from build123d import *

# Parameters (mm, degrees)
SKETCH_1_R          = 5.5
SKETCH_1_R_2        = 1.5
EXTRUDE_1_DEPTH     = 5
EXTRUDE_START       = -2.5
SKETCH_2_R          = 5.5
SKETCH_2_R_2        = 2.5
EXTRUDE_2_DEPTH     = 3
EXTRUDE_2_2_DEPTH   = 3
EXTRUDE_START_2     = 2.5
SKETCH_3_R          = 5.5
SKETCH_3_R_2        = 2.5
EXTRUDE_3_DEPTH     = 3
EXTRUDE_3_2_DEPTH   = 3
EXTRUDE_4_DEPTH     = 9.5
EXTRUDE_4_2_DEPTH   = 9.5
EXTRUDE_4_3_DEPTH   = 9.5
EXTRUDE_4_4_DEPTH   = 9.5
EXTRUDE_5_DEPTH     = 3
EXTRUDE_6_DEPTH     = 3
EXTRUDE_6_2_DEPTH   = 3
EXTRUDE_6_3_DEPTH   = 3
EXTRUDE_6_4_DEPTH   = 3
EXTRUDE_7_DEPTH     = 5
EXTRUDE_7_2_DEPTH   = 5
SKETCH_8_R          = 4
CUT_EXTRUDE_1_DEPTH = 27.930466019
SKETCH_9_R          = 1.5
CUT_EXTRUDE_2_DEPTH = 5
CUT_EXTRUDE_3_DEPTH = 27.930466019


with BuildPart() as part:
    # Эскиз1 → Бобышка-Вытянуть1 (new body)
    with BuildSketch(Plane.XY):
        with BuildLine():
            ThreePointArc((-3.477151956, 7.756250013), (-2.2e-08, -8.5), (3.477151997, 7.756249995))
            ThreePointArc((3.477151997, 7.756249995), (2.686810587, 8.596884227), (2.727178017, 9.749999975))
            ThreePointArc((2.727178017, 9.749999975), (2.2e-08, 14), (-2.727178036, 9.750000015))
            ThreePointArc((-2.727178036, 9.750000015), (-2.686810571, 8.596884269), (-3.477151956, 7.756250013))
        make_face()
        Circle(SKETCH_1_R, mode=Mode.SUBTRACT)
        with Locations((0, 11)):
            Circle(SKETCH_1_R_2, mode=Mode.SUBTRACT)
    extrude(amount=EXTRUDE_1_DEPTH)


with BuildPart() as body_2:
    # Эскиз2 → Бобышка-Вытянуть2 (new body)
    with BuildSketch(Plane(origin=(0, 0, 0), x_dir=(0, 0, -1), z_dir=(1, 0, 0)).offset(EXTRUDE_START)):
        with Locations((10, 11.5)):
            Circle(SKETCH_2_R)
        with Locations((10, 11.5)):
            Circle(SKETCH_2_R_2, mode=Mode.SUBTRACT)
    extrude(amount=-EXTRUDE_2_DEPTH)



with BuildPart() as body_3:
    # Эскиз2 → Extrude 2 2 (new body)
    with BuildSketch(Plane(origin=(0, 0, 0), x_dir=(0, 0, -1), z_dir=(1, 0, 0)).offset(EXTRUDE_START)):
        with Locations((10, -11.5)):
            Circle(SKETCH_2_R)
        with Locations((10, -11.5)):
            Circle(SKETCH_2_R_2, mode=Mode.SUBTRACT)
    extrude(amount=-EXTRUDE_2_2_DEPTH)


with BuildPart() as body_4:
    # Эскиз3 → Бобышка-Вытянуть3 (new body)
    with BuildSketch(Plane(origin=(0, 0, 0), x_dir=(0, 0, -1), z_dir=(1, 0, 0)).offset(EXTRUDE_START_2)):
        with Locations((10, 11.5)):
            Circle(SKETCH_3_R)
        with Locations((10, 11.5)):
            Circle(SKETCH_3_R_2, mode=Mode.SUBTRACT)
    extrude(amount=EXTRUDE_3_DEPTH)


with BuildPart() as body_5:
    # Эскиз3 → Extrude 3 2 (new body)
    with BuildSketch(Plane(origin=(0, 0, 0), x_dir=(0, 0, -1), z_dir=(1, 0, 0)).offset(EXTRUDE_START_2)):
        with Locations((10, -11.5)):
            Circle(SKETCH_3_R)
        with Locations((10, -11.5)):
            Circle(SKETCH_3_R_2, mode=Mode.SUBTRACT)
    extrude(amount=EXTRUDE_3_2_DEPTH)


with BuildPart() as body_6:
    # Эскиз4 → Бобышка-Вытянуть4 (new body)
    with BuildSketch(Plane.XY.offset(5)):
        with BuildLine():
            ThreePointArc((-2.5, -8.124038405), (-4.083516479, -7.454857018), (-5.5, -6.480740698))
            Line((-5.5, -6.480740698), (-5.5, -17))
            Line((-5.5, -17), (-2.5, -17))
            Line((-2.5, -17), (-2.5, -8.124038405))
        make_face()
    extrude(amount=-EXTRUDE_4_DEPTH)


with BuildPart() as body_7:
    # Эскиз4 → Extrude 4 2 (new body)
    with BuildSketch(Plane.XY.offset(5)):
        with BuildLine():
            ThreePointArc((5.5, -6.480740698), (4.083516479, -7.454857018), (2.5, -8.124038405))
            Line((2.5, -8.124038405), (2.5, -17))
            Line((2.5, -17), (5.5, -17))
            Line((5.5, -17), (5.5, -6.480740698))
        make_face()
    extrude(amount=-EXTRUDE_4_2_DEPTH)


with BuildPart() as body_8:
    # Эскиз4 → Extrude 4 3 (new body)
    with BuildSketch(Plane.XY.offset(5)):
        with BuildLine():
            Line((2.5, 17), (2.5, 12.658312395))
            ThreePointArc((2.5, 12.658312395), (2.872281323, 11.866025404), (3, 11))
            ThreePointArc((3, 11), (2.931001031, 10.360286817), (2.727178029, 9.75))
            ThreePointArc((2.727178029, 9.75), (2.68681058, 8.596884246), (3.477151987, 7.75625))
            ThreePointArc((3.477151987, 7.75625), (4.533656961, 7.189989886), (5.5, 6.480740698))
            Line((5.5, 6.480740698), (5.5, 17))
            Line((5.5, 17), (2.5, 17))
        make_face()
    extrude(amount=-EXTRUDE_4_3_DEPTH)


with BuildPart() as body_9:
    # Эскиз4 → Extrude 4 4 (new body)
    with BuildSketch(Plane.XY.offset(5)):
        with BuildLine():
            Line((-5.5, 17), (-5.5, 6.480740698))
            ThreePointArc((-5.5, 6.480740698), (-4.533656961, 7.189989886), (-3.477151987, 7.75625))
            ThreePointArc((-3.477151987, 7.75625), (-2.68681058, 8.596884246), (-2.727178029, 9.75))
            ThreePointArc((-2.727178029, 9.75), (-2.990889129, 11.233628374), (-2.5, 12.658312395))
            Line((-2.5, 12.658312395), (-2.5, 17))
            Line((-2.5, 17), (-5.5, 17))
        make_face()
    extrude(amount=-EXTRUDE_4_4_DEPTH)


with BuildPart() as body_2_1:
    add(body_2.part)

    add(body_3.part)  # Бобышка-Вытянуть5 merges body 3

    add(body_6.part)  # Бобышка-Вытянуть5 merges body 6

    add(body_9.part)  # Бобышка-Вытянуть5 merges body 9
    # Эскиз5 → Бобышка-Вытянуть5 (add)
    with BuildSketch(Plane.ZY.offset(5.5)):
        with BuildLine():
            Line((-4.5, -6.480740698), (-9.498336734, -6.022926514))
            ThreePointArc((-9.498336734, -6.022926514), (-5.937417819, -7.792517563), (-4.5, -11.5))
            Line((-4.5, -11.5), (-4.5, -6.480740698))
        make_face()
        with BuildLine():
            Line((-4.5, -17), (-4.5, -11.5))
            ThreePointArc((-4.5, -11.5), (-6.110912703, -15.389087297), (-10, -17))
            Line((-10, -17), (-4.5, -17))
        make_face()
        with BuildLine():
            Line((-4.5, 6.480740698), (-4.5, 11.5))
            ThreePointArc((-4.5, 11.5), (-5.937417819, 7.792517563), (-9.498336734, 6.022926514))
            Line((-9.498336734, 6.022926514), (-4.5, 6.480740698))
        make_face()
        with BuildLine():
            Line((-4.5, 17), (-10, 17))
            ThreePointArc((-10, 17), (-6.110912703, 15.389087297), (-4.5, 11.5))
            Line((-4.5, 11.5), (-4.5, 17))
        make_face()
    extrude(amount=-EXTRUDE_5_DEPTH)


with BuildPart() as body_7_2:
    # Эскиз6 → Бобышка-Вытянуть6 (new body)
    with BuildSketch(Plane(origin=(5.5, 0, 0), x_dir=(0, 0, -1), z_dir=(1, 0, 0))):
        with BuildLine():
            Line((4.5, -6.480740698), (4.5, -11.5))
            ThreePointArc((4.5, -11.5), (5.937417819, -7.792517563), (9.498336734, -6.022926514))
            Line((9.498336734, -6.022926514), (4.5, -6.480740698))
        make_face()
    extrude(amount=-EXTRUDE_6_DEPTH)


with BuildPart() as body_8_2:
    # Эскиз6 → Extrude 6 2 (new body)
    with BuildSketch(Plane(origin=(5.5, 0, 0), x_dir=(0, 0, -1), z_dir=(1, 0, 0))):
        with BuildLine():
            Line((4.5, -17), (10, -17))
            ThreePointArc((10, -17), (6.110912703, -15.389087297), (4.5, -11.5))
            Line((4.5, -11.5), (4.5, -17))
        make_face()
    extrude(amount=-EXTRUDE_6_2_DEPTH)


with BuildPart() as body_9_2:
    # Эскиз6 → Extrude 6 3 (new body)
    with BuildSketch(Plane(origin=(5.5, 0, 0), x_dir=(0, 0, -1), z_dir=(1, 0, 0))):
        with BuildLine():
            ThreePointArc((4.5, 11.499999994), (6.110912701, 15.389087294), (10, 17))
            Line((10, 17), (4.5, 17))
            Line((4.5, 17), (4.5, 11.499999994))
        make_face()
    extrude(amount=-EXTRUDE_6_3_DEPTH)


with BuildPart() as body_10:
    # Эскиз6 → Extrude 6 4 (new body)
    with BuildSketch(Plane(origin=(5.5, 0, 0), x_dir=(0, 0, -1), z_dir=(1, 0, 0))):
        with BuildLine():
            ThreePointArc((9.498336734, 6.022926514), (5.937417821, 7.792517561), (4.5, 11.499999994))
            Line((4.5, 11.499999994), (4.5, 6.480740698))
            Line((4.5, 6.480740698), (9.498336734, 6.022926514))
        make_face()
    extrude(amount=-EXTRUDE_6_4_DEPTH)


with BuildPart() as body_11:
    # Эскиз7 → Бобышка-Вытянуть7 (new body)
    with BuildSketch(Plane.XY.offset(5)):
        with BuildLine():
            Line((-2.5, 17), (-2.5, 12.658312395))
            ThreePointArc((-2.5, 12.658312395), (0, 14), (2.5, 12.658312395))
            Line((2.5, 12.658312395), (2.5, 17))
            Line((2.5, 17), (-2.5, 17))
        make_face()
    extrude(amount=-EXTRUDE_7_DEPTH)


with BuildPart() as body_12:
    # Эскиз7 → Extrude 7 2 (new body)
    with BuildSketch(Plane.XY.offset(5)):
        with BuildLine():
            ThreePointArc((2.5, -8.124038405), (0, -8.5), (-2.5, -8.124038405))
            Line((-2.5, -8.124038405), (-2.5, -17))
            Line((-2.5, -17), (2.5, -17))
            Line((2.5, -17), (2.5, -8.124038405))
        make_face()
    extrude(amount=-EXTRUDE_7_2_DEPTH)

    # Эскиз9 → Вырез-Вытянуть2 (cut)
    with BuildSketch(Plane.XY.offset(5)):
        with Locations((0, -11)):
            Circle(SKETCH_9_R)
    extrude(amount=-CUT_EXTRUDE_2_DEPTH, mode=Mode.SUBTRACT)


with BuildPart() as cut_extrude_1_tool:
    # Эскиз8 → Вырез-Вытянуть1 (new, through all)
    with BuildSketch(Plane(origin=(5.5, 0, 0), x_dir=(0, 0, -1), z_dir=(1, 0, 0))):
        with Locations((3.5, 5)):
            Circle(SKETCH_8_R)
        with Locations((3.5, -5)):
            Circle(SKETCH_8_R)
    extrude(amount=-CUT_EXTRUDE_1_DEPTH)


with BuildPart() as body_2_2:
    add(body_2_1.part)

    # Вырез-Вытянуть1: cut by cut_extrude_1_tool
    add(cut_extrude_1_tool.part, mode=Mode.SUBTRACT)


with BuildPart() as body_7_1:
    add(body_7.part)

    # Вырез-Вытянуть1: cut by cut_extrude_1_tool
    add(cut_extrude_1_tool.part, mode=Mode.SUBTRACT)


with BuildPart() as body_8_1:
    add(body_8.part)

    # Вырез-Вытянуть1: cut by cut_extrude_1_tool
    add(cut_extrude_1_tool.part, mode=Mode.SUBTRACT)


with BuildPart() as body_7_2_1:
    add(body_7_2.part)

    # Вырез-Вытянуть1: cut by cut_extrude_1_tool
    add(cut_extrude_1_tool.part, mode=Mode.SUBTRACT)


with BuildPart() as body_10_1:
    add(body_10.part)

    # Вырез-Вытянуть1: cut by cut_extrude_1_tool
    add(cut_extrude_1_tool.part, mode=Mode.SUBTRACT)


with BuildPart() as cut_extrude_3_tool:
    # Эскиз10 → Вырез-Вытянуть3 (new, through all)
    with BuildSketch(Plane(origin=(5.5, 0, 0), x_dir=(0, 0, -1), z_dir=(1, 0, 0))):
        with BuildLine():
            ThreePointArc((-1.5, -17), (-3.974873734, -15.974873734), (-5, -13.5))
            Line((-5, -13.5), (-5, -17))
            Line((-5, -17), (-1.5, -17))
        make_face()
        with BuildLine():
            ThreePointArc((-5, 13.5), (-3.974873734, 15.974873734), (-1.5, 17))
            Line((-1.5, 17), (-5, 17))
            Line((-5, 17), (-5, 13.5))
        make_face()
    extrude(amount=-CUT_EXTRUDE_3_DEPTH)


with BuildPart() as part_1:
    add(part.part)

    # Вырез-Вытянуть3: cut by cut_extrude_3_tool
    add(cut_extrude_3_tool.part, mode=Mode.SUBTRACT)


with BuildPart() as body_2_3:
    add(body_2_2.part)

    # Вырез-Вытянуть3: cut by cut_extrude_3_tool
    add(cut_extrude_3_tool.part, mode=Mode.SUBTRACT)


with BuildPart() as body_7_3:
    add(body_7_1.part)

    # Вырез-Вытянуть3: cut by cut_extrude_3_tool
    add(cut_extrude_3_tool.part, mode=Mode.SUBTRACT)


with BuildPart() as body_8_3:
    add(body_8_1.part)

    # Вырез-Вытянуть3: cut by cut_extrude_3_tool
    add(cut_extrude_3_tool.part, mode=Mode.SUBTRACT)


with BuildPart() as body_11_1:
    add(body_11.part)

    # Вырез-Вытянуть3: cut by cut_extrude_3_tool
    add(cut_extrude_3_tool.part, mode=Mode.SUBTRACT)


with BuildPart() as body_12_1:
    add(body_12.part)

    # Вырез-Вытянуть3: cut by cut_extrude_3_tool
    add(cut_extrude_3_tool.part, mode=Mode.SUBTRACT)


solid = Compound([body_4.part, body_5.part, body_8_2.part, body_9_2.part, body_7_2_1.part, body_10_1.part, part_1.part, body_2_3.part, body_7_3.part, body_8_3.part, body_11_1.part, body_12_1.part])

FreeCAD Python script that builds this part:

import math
import FreeCAD as App
import Part
import Sketcher

V = App.Vector

doc = App.newDocument("Part")
body = doc.addObject("PartDesign::Body", "Body")

sketch1 = doc.addObject("Sketcher::SketchObject", "Sketch")
body.addObject(sketch1)
sketch1.AttachmentSupport = (doc.XY_Plane, [""])
sketch1.MapMode = "FlatFace"
sketch1.addGeometry([
    Part.ArcOfCircle(Part.Circle(V(0, 0, 0), V(0, 0, 1), 8.5), math.radians(114), math.radians(426)),
    Part.ArcOfCircle(Part.Circle(V(4.1, 9.1, 0), V(0, 0, 1), 1.5), math.radians(155), math.radians(246)),
    Part.ArcOfCircle(Part.Circle(V(0, 11, 0), V(0, 0, 1), 3), math.radians(-25), math.radians(205)),
    Part.ArcOfCircle(Part.Circle(V(-4.1, 9.1, 0), V(0, 0, 1), 1.5), math.radians(-66), math.radians(25)),
    Part.Circle(V(0, 0, 0), V(0, 0, 1), 5.5),
    Part.Circle(V(0, 11, 0), V(0, 0, 1), 1.5),
], False)
sketch1.addConstraint([
    Sketcher.Constraint("Tangent", 0, 2, 1, 2),
    Sketcher.Constraint("Tangent", 1, 1, 2, 1),
    Sketcher.Constraint("Tangent", 2, 2, 3, 2),
    Sketcher.Constraint("Tangent", 3, 1, 0, 1),
    Sketcher.Constraint("Coincident", 0, 3, -1, 1),
    Sketcher.Constraint("Coincident", 4, 3, -1, 1),
    Sketcher.Constraint("Coincident", 5, 3, 2, 3),
    Sketcher.Constraint("Equal", 1, 3),
    Sketcher.Constraint("Equal", 3, 5),
    Sketcher.Constraint("PointOnObject", 2, 3, -2),
    Sketcher.Constraint("Diameter", 4, 11.0),
    Sketcher.Constraint("Diameter", 5, 3.0),
    Sketcher.Constraint("Radius", 2, 3.0),
    Sketcher.Constraint("Radius", 0, 8.5),
    Sketcher.Constraint("DistanceY", -1, 1, 2, 3, 11.0),
])
pad1 = doc.addObject("PartDesign::Pad", "Pad")
body.addObject(pad1)
pad1.Profile = sketch1
pad1.Length = 5
body2 = doc.addObject("PartDesign::Body", "Body001")

sketch2 = doc.addObject("Sketcher::SketchObject", "Sketch001")
body2.addObject(sketch2)
sketch2.AttachmentSupport = (doc.getObject("YZ_Plane001"), [""])
sketch2.MapMode = "FlatFace"
sketch2.AttachmentOffset = App.Placement(V(0, 0, -2.5), App.Rotation())
sketch2.addGeometry([
    Part.Circle(V(11.5, -10, 0), V(0, 0, 1), 5.5),
    Part.Circle(V(11.5, -10, 0), V(0, 0, 1), 2.5),
], False)
sketch2.addConstraint([
    Sketcher.Constraint("Coincident", 1, 3, 0, 3),
    Sketcher.Constraint("Diameter", 0, 11.0),
    Sketcher.Constraint("Diameter", 1, 5.0),
    Sketcher.Constraint("DistanceY", 0, 3, -1, 1, 10.0),
    Sketcher.Constraint("DistanceX", -1, 1, 0, 3, 11.5),
])
pad2 = doc.addObject("PartDesign::Pad", "Pad001")
body2.addObject(pad2)
pad2.Profile = sketch2
pad2.Length = 3
pad2.Reversed = True
body3 = doc.addObject("PartDesign::Body", "Body002")

sketch3 = doc.addObject("Sketcher::SketchObject", "Sketch002")
body3.addObject(sketch3)
sketch3.AttachmentSupport = (doc.getObject("YZ_Plane002"), [""])
sketch3.MapMode = "FlatFace"
sketch3.AttachmentOffset = App.Placement(V(0, 0, -2.5), App.Rotation())
sketch3.addGeometry([
    Part.Circle(V(-11.5, -10, 0), V(0, 0, 1), 5.5),
    Part.Circle(V(-11.5, -10, 0), V(0, 0, 1), 2.5),
], False)
sketch3.addConstraint([
    Sketcher.Constraint("Coincident", 1, 3, 0, 3),
    Sketcher.Constraint("Diameter", 0, 11.0),
    Sketcher.Constraint("Diameter", 1, 5.0),
    Sketcher.Constraint("DistanceY", 0, 3, -1, 1, 10.0),
    Sketcher.Constraint("DistanceX", 0, 3, -1, 1, 11.5),
])
pad3 = doc.addObject("PartDesign::Pad", "Pad002")
body3.addObject(pad3)
pad3.Profile = sketch3
pad3.Length = 3
pad3.Reversed = True
body4 = doc.addObject("PartDesign::Body", "Body003")

sketch4 = doc.addObject("Sketcher::SketchObject", "Sketch003")
body4.addObject(sketch4)
sketch4.AttachmentSupport = (doc.getObject("YZ_Plane003"), [""])
sketch4.MapMode = "FlatFace"
sketch4.AttachmentOffset = App.Placement(V(0, 0, 2.5), App.Rotation())
sketch4.addGeometry([
    Part.Circle(V(11.5, -10, 0), V(0, 0, 1), 5.5),
    Part.Circle(V(11.5, -10, 0), V(0, 0, 1), 2.5),
], False)
sketch4.addConstraint([
    Sketcher.Constraint("Coincident", 1, 3, 0, 3),
    Sketcher.Constraint("Diameter", 0, 11.0),
    Sketcher.Constraint("Diameter", 1, 5.0),
    Sketcher.Constraint("DistanceY", 0, 3, -1, 1, 10.0),
    Sketcher.Constraint("DistanceX", -1, 1, 0, 3, 11.5),
])
pad4 = doc.addObject("PartDesign::Pad", "Pad003")
body4.addObject(pad4)
pad4.Profile = sketch4
pad4.Length = 3
body5 = doc.addObject("PartDesign::Body", "Body004")

sketch5 = doc.addObject("Sketcher::SketchObject", "Sketch004")
body5.addObject(sketch5)
sketch5.AttachmentSupport = (doc.getObject("YZ_Plane004"), [""])
sketch5.MapMode = "FlatFace"
sketch5.AttachmentOffset = App.Placement(V(0, 0, 2.5), App.Rotation())
sketch5.addGeometry([
    Part.Circle(V(-11.5, -10, 0), V(0, 0, 1), 5.5),
    Part.Circle(V(-11.5, -10, 0), V(0, 0, 1), 2.5),
], False)
sketch5.addConstraint([
    Sketcher.Constraint("Coincident", 1, 3, 0, 3),
    Sketcher.Constraint("Diameter", 0, 11.0),
    Sketcher.Constraint("Diameter", 1, 5.0),
    Sketcher.Constraint("DistanceY", 0, 3, -1, 1, 10.0),
    Sketcher.Constraint("DistanceX", 0, 3, -1, 1, 11.5),
])
pad5 = doc.addObject("PartDesign::Pad", "Pad004")
body5.addObject(pad5)
pad5.Profile = sketch5
pad5.Length = 3
body6 = doc.addObject("PartDesign::Body", "Body005")

sketch6 = doc.addObject("Sketcher::SketchObject", "Sketch005")
body6.addObject(sketch6)
sketch6.AttachmentSupport = (doc.getObject("XY_Plane005"), [""])
sketch6.MapMode = "FlatFace"
sketch6.AttachmentOffset = App.Placement(V(0, 0, 5), App.Rotation())
sketch6.addGeometry([
    Part.ArcOfCircle(Part.Circle(V(0, 0, 0), V(0, 0, 1), 8.5), math.radians(-130), math.radians(-107)),
    Part.LineSegment(V(-5.5, -6.5, 0), V(-5.5, -17, 0)),
    Part.LineSegment(V(-5.5, -17, 0), V(-2.5, -17, 0)),
    Part.LineSegment(V(-2.5, -17, 0), V(-2.5, -8.1, 0)),
], False)
sketch6.addConstraint([
    Sketcher.Constraint("Coincident", 0, 1, 1, 1),
    Sketcher.Constraint("Coincident", 1, 2, 2, 1),
    Sketcher.Constraint("Coincident", 2, 2, 3, 1),
    Sketcher.Constraint("Coincident", 3, 2, 0, 2),
    Sketcher.Constraint("Vertical", 1),
    Sketcher.Constraint("Horizontal", 2),
    Sketcher.Constraint("Vertical", 3),
    Sketcher.Constraint("Coincident", 0, 3, -1, 1),
    Sketcher.Constraint("Radius", 0, 8.5),
    Sketcher.Constraint("DistanceX", 2, 1, 2, 2, 3.0),
    Sketcher.Constraint("DistanceY", 1, 2, -1, 1, 17.0),
    Sketcher.Constraint("DistanceX", 0, 1, -1, 1, 5.5),
])
pad6 = doc.addObject("PartDesign::Pad", "Pad005")
body6.addObject(pad6)
pad6.Profile = sketch6
pad6.Length = 9.5
pad6.Reversed = True
body7 = doc.addObject("PartDesign::Body", "Body006")

sketch7 = doc.addObject("Sketcher::SketchObject", "Sketch006")
body7.addObject(sketch7)
sketch7.AttachmentSupport = (doc.getObject("XY_Plane006"), [""])
sketch7.MapMode = "FlatFace"
sketch7.AttachmentOffset = App.Placement(V(0, 0, 5), App.Rotation())
sketch7.addGeometry([
    Part.ArcOfCircle(Part.Circle(V(0, 0, 0), V(0, 0, 1), 8.5), math.radians(-73), math.radians(-50)),
    Part.LineSegment(V(2.5, -8.1, 0), V(2.5, -17, 0)),
    Part.LineSegment(V(2.5, -17, 0), V(5.5, -17, 0)),
    Part.LineSegment(V(5.5, -17, 0), V(5.5, -6.5, 0)),
], False)
sketch7.addConstraint([
    Sketcher.Constraint("Coincident", 0, 1, 1, 1),
    Sketcher.Constraint("Coincident", 1, 2, 2, 1),
    Sketcher.Constraint("Coincident", 2, 2, 3, 1),
    Sketcher.Constraint("Coincident", 3, 2, 0, 2),
    Sketcher.Constraint("Vertical", 1),
    Sketcher.Constraint("Horizontal", 2),
    Sketcher.Constraint("Vertical", 3),
    Sketcher.Constraint("Coincident", 0, 3, -1, 1),
    Sketcher.Constraint("Radius", 0, 8.5),
    Sketcher.Constraint("DistanceX", 2, 1, 2, 2, 3.0),
    Sketcher.Constraint("DistanceY", 1, 2, -1, 1, 17.0),
    Sketcher.Constraint("DistanceX", -1, 1, 0, 1, 2.5),
])
pad7 = doc.addObject("PartDesign::Pad", "Pad006")
body7.addObject(pad7)
pad7.Profile = sketch7
pad7.Length = 9.5
pad7.Reversed = True
body8 = doc.addObject("PartDesign::Body", "Body007")

sketch8 = doc.addObject("Sketcher::SketchObject", "Sketch007")
body8.addObject(sketch8)
sketch8.AttachmentSupport = (doc.getObject("XY_Plane007"), [""])
sketch8.MapMode = "FlatFace"
sketch8.AttachmentOffset = App.Placement(V(0, 0, 5), App.Rotation())
sketch8.addGeometry([
    Part.LineSegment(V(2.5, 17, 0), V(2.5, 12.7, 0)),
    Part.ArcOfCircle(Part.Circle(V(0, 11, 0), V(0, 0, 1), 3), math.radians(0), math.radians(34)),
    Part.ArcOfCircle(Part.Circle(V(0, 11, 0), V(0, 0, 1), 3), math.radians(-25), math.radians(0)),
    Part.ArcOfCircle(Part.Circle(V(4.1, 9.1, 0), V(0, 0, 1), 1.5), math.radians(155), math.radians(246)),
    Part.ArcOfCircle(Part.Circle(V(0, 0, 0), V(0, 0, 1), 8.5), math.radians(49.68), math.radians(65.85)),
    Part.LineSegment(V(5.5, 6.5, 0), V(5.5, 17, 0)),
    Part.LineSegment(V(5.5, 17, 0), V(2.5, 17, 0)),
], False)
sketch8.addConstraint([
    Sketcher.Constraint("Coincident", 0, 2, 1, 2),
    Sketcher.Constraint("Tangent", 1, 1, 2, 2),
    Sketcher.Constraint("Tangent", 2, 1, 3, 1),
    Sketcher.Constraint("Tangent", 3, 2, 4, 2),
    Sketcher.Constraint("Coincident", 4, 1, 5, 1),
    Sketcher.Constraint("Coincident", 5, 2, 6, 1),
    Sketcher.Constraint("Coincident", 6, 2, 0, 1),
    Sketcher.Constraint("Vertical", 0),
    Sketcher.Constraint("Vertical", 5),
    Sketcher.Constraint("Horizontal", 6),
    Sketcher.Constraint("Coincident", 4, 3, -1, 1),
    Sketcher.Constraint("Equal", 1, 2),
    Sketcher.Constraint("PointOnObject", 1, 3, -2),
    Sketcher.Constraint("Horizontal", 2, 3, 1, 1),
    Sketcher.Constraint("Radius", 1, 3.0),
    Sketcher.Constraint("Radius", 3, 1.5),
    Sketcher.Constraint("Radius", 4, 8.5),
    Sketcher.Constraint("DistanceX", 6, 2, 6, 1, 3.0),
    Sketcher.Constraint("DistanceY", -1, 1, 1, 3, 11.0),
    Sketcher.Constraint("DistanceY", -1, 1, 5, 2, 17.0),
    Sketcher.Constraint("DistanceX", -1, 1, 0, 2, 2.5),
])
pad8 = doc.addObject("PartDesign::Pad", "Pad007")
body8.addObject(pad8)
pad8.Profile = sketch8
pad8.Length = 9.5
pad8.Reversed = True
body9 = doc.addObject("PartDesign::Body", "Body008")

sketch9 = doc.addObject("Sketcher::SketchObject", "Sketch008")
body9.addObject(sketch9)
sketch9.AttachmentSupport = (doc.getObject("XY_Plane008"), [""])
sketch9.MapMode = "FlatFace"
sketch9.AttachmentOffset = App.Placement(V(0, 0, 5), App.Rotation())
sketch9.addGeometry([
    Part.LineSegment(V(-5.5, 17, 0), V(-5.5, 6.5, 0)),
    Part.ArcOfCircle(Part.Circle(V(0, 0, 0), V(0, 0, 1), 8.5), math.radians(114.15), math.radians(130.32)),
    Part.ArcOfCircle(Part.Circle(V(-4.1, 9.1, 0), V(0, 0, 1), 1.5), math.radians(-66), math.radians(25)),
    Part.ArcOfCircle(Part.Circle(V(0, 11, 0), V(0, 0, 1), 3), math.radians(146), math.radians(205)),
    Part.LineSegment(V(-2.5, 12.7, 0), V(-2.5, 17, 0)),
    Part.LineSegment(V(-2.5, 17, 0), V(-5.5, 17, 0)),
], False)
sketch9.addConstraint([
    Sketcher.Constraint("Coincident", 0, 2, 1, 2),
    Sketcher.Constraint("Tangent", 1, 1, 2, 1),
    Sketcher.Constraint("Tangent", 2, 2, 3, 2),
    Sketcher.Constraint("Coincident", 3, 1, 4, 1),
    Sketcher.Constraint("Coincident", 4, 2, 5, 1),
    Sketcher.Constraint("Coincident", 5, 2, 0, 1),
    Sketcher.Constraint("Vertical", 0),
    Sketcher.Constraint("Vertical", 4),
    Sketcher.Constraint("Horizontal", 5),
    Sketcher.Constraint("Coincident", 1, 3, -1, 1),
    Sketcher.Constraint("PointOnObject", 3, 3, -2),
    Sketcher.Constraint("Radius", 3, 3.0),
    Sketcher.Constraint("Radius", 1, 8.5),
    Sketcher.Constraint("Radius", 2, 1.5),
    Sketcher.Constraint("DistanceX", 5, 2, 5, 1, 3.0),
    Sketcher.Constraint("DistanceY", -1, 1, 3, 3, 11.0),
    Sketcher.Constraint("DistanceY", -1, 1, 4, 2, 17.0),
    Sketcher.Constraint("DistanceX", 0, 2, -1, 1, 5.5),
])
pad9 = doc.addObject("PartDesign::Pad", "Pad008")
body9.addObject(pad9)
pad9.Profile = sketch9
pad9.Length = 9.5
pad9.Reversed = True
body2.AllowCompound = True
doc.recompute()

boolean = doc.addObject("PartDesign::Boolean", "Boolean")
body2.addObject(boolean)
boolean.Type = "Fuse"
boolean.addObjects([body3])
doc.recompute()

boolean2 = doc.addObject("PartDesign::Boolean", "Boolean001")
body2.addObject(boolean2)
boolean2.Type = "Fuse"
boolean2.addObjects([body6])
doc.recompute()

boolean3 = doc.addObject("PartDesign::Boolean", "Boolean002")
body2.addObject(boolean3)
boolean3.Type = "Fuse"
boolean3.addObjects([body9])

sketch10 = doc.addObject("Sketcher::SketchObject", "Sketch009")
body2.addObject(sketch10)
sketch10.AttachmentSupport = (doc.getObject("YZ_Plane001"), [""])
sketch10.MapMode = "FlatFace"
sketch10.AttachmentOffset = App.Placement(V(0, 0, -5.5), App.Rotation())
sketch10.addGeometry([
    Part.LineSegment(V(-6, -4, 0), V(-6, -9, 0)),
    Part.ArcOfCircle(Part.Circle(V(-12, -10, 0), V(0, 0, 1), 6), math.radians(5), math.radians(90)),
    Part.LineSegment(V(-12, -4, 0), V(-6, -4, 0)),
    Part.LineSegment(V(-17, -4, 0), V(-12, -4, 0)),
    Part.ArcOfCircle(Part.Circle(V(-12, -10, 0), V(0, 0, 1), 5), math.radians(90), math.radians(180)),
    Part.LineSegment(V(-17, -10, 0), V(-17, -4, 0)),
    Part.LineSegment(V(6, -4, 0), V(12, -4, 0)),
    Part.ArcOfCircle(Part.Circle(V(12, -10, 0), V(0, 0, 1), 6), math.radians(90), math.radians(175)),
    Part.LineSegment(V(6, -9, 0), V(6, -4, 0)),
    Part.LineSegment(V(17, -4, 0), V(17, -10, 0)),
    Part.ArcOfCircle(Part.Circle(V(12, -10, 0), V(0, 0, 1), 5), math.radians(0), math.radians(90)),
    Part.LineSegment(V(12, -4, 0), V(17, -4, 0)),
], False)
sketch10.addConstraint([
    Sketcher.Constraint("Tangent", 0, 2, 1, 1),
    Sketcher.Constraint("Tangent", 1, 2, 2, 1),
    Sketcher.Constraint("Coincident", 2, 2, 0, 1),
    Sketcher.Constraint("Tangent", 3, 2, 4, 1),
    Sketcher.Constraint("Tangent", 4, 2, 5, 1),
    Sketcher.Constraint("Coincident", 5, 2, 3, 1),
    Sketcher.Constraint("Tangent", 6, 2, 7, 1),
    Sketcher.Constraint("Tangent", 7, 2, 8, 1),
    Sketcher.Constraint("Coincident", 8, 2, 6, 1),
    Sketcher.Constraint("Tangent", 9, 2, 10, 1),
    Sketcher.Constraint("Tangent", 10, 2, 11, 1),
    Sketcher.Constraint("Coincident", 11, 2, 9, 1),
    Sketcher.Constraint("Horizontal", 2),
    Sketcher.Constraint("Horizontal", 3),
    Sketcher.Constraint("Vertical", 5),
    Sketcher.Constraint("Horizontal", 6),
    Sketcher.Constraint("Vertical", 9),
    Sketcher.Constraint("Horizontal", 11),
    Sketcher.Constraint("Coincident", 4, 3, 1, 3),
    Sketcher.Constraint("Coincident", 10, 3, 7, 3),
    Sketcher.Constraint("Equal", 1, 4),
    Sketcher.Constraint("Equal", 4, 7),
    Sketcher.Constraint("Equal", 7, 10),
    Sketcher.Constraint("Symmetric", 1, 3, 7, 3, -2),
    Sketcher.Constraint("Horizontal", 0, 2, 7, 2),
    Sketcher.Constraint("Radius", 1, 5.5),
    Sketcher.Constraint("DistanceY", 1, 3, -1, 1, 10.0),
    Sketcher.Constraint("DistanceX", 4, 2, -1, 1, 17.0),
    Sketcher.Constraint("DistanceX", 2, 1, 2, 2, 5.019259),
])
pad10 = doc.addObject("PartDesign::Pad", "Pad009")
body2.addObject(pad10)
pad10.Profile = sketch10
pad10.Length = 3
body10 = doc.addObject("PartDesign::Body", "Body009")

sketch11 = doc.addObject("Sketcher::SketchObject", "Sketch010")
body10.addObject(sketch11)
sketch11.AttachmentSupport = (doc.getObject("YZ_Plane009"), [""])
sketch11.MapMode = "FlatFace"
sketch11.AttachmentOffset = App.Placement(V(0, 0, 5.5), App.Rotation())
sketch11.addGeometry([
    Part.LineSegment(V(-6, -4, 0), V(-12, -4, 0)),
    Part.ArcOfCircle(Part.Circle(V(-12, -10, 0), V(0, 0, 1), 6), math.radians(5), math.radians(90)),
    Part.LineSegment(V(-6, -9, 0), V(-6, -4, 0)),
], False)
sketch11.addConstraint([
    Sketcher.Constraint("Tangent", 0, 2, 1, 2),
    Sketcher.Constraint("Tangent", 1, 1, 2, 1),
    Sketcher.Constraint("Coincident", 2, 2, 0, 1),
    Sketcher.Constraint("Horizontal", 0),
    Sketcher.Constraint("Radius", 1, 5.5),
    Sketcher.Constraint("DistanceY", 1, 3, -1, 1, 10.0),
    Sketcher.Constraint("DistanceX", 1, 3, -1, 1, 11.5),
    Sketcher.Constraint("DistanceX", 0, 2, 0, 1, 5.019259),
])
pad11 = doc.addObject("PartDesign::Pad", "Pad010")
body10.addObject(pad11)
pad11.Profile = sketch11
pad11.Length = 3
pad11.Reversed = True
body11 = doc.addObject("PartDesign::Body", "Body010")

sketch12 = doc.addObject("Sketcher::SketchObject", "Sketch011")
body11.addObject(sketch12)
sketch12.AttachmentSupport = (doc.getObject("YZ_Plane010"), [""])
sketch12.MapMode = "FlatFace"
sketch12.AttachmentOffset = App.Placement(V(0, 0, 5.5), App.Rotation())
sketch12.addGeometry([
    Part.LineSegment(V(-17, -4, 0), V(-17, -10, 0)),
    Part.ArcOfCircle(Part.Circle(V(-12, -10, 0), V(0, 0, 1), 5), math.radians(90), math.radians(180)),
    Part.LineSegment(V(-12, -4, 0), V(-17, -4, 0)),
], False)
sketch12.addConstraint([
    Sketcher.Constraint("Tangent", 0, 2, 1, 2),
    Sketcher.Constraint("Tangent", 1, 1, 2, 1),
    Sketcher.Constraint("Coincident", 2, 2, 0, 1),
    Sketcher.Constraint("Vertical", 0),
    Sketcher.Constraint("Horizontal", 2),
    Sketcher.Constraint("Radius", 1, 5.5),
    Sketcher.Constraint("DistanceY", 1, 3, -1, 1, 10.0),
    Sketcher.Constraint("DistanceX", 0, 2, -1, 1, 17.0),
])
pad12 = doc.addObject("PartDesign::Pad", "Pad011")
body11.addObject(pad12)
pad12.Profile = sketch12
pad12.Length = 3
pad12.Reversed = True
body12 = doc.addObject("PartDesign::Body", "Body011")

sketch13 = doc.addObject("Sketcher::SketchObject", "Sketch012")
body12.addObject(sketch13)
sketch13.AttachmentSupport = (doc.getObject("YZ_Plane011"), [""])
sketch13.MapMode = "FlatFace"
sketch13.AttachmentOffset = App.Placement(V(0, 0, 5.5), App.Rotation())
sketch13.addGeometry([
    Part.ArcOfCircle(Part.Circle(V(12, -10, 0), V(0, 0, 1), 6), math.radians(0), math.radians(90)),
    Part.LineSegment(V(17, -10, 0), V(17, -4, 0)),
    Part.LineSegment(V(17, -4, 0), V(11, -4, 0)),
], False)
sketch13.addConstraint([
    Sketcher.Constraint("Tangent", 0, 1, 1, 1),
    Sketcher.Constraint("Coincident", 1, 2, 2, 1),
    Sketcher.Constraint("Tangent", 2, 2, 0, 2),
    Sketcher.Constraint("Vertical", 1),
    Sketcher.Constraint("Horizontal", 2),
    Sketcher.Constraint("Radius", 0, 5.5),
    Sketcher.Constraint("DistanceY", 0, 3, -1, 1, 10.0),
    Sketcher.Constraint("DistanceX", -1, 1, 0, 1, 17.0),
])
pad13 = doc.addObject("PartDesign::Pad", "Pad012")
body12.addObject(pad13)
pad13.Profile = sketch13
pad13.Length = 3
pad13.Reversed = True
body13 = doc.addObject("PartDesign::Body", "Body012")

sketch14 = doc.addObject("Sketcher::SketchObject", "Sketch013")
body13.addObject(sketch14)
sketch14.AttachmentSupport = (doc.getObject("YZ_Plane012"), [""])
sketch14.MapMode = "FlatFace"
sketch14.AttachmentOffset = App.Placement(V(0, 0, 5.5), App.Rotation())
sketch14.addGeometry([
    Part.ArcOfCircle(Part.Circle(V(12, -10, 0), V(0, 0, 1), 6), math.radians(90), math.radians(175)),
    Part.LineSegment(V(11, -4, 0), V(6, -4, 0)),
    Part.LineSegment(V(6, -4, 0), V(6, -9, 0)),
], False)
sketch14.addConstraint([
    Sketcher.Constraint("Tangent", 0, 1, 1, 1),
    Sketcher.Constraint("Coincident", 1, 2, 2, 1),
    Sketcher.Constraint("Tangent", 2, 2, 0, 2),
    Sketcher.Constraint("Horizontal", 1),
    Sketcher.Constraint("Radius", 0, 5.5),
    Sketcher.Constraint("DistanceY", 0, 3, -1, 1, 10.0),
    Sketcher.Constraint("DistanceX", -1, 1, 0, 3, 11.5),
    Sketcher.Constraint("DistanceX", 1, 2, 1, 1, 5.019259),
])
pad14 = doc.addObject("PartDesign::Pad", "Pad013")
body13.addObject(pad14)
pad14.Profile = sketch14
pad14.Length = 3
pad14.Reversed = True
body14 = doc.addObject("PartDesign::Body", "Body013")

sketch15 = doc.addObject("Sketcher::SketchObject", "Sketch014")
body14.addObject(sketch15)
sketch15.AttachmentSupport = (doc.getObject("XY_Plane013"), [""])
sketch15.MapMode = "FlatFace"
sketch15.AttachmentOffset = App.Placement(V(0, 0, 5), App.Rotation())
sketch15.addGeometry([
    Part.LineSegment(V(-2.5, 17, 0), V(-2.5, 12.7, 0)),
    Part.ArcOfCircle(Part.Circle(V(0, 11, 0), V(0, 0, 1), 3), math.radians(34), math.radians(146)),
    Part.LineSegment(V(2.5, 12.7, 0), V(2.5, 17, 0)),
    Part.LineSegment(V(2.5, 17, 0), V(-2.5, 17, 0)),
], False)
sketch15.addConstraint([
    Sketcher.Constraint("Coincident", 0, 2, 1, 2),
    Sketcher.Constraint("Coincident", 1, 1, 2, 1),
    Sketcher.Constraint("Coincident", 2, 2, 3, 1),
    Sketcher.Constraint("Coincident", 3, 2, 0, 1),
    Sketcher.Constraint("Vertical", 0),
    Sketcher.Constraint("Vertical", 2),
    Sketcher.Constraint("Horizontal", 3),
    Sketcher.Constraint("Symmetric", 0, 2, 1, 1, -2),
    Sketcher.Constraint("Radius", 1, 3.0),
    Sketcher.Constraint("DistanceX", 3, 2, 3, 1, 5.0),
    Sketcher.Constraint("DistanceY", -1, 1, 1, 3, 11.0),
    Sketcher.Constraint("DistanceY", -1, 1, 2, 2, 17.0),
])
pad15 = doc.addObject("PartDesign::Pad", "Pad014")
body14.addObject(pad15)
pad15.Profile = sketch15
pad15.Length = 5
pad15.Reversed = True
body15 = doc.addObject("PartDesign::Body", "Body014")

sketch16 = doc.addObject("Sketcher::SketchObject", "Sketch015")
body15.addObject(sketch16)
sketch16.AttachmentSupport = (doc.getObject("XY_Plane014"), [""])
sketch16.MapMode = "FlatFace"
sketch16.AttachmentOffset = App.Placement(V(0, 0, 5), App.Rotation())
sketch16.addGeometry([
    Part.ArcOfCircle(Part.Circle(V(0, 0, 0), V(0, 0, 1), 9), math.radians(-107), math.radians(-73)),
    Part.LineSegment(V(-2, -8, 0), V(-2, -17, 0)),
    Part.LineSegment(V(-2, -17, 0), V(2, -17, 0)),
    Part.LineSegment(V(2, -17, 0), V(2, -8, 0)),
], False)
sketch16.addConstraint([
    Sketcher.Constraint("Coincident", 0, 1, 1, 1),
    Sketcher.Constraint("Coincident", 1, 2, 2, 1),
    Sketcher.Constraint("Coincident", 2, 2, 3, 1),
    Sketcher.Constraint("Coincident", 3, 2, 0, 2),
    Sketcher.Constraint("Vertical", 1),
    Sketcher.Constraint("Horizontal", 2),
    Sketcher.Constraint("Vertical", 3),
    Sketcher.Constraint("Coincident", 0, 3, -1, 1),
    Sketcher.Constraint("Horizontal", 0, 1, 3, 2),
    Sketcher.Constraint("Radius", 0, 8.5),
    Sketcher.Constraint("DistanceX", 2, 1, 2, 2, 5.0),
    Sketcher.Constraint("DistanceY", 1, 2, -1, 1, 17.0),
])
pad16 = doc.addObject("PartDesign::Pad", "Pad015")
body15.addObject(pad16)
pad16.Profile = sketch16
pad16.Length = 5
pad16.Reversed = True

sketch17 = doc.addObject("Sketcher::SketchObject", "Sketch016")
body15.addObject(sketch17)
sketch17.AttachmentSupport = (doc.getObject("XY_Plane014"), [""])
sketch17.MapMode = "FlatFace"
sketch17.AttachmentOffset = App.Placement(V(0, 0, 5), App.Rotation())
sketch17.addGeometry(Part.Circle(V(0, -11, 0), V(0, 0, 1), 1.5), False)
sketch17.addConstraint([
    Sketcher.Constraint("PointOnObject", 0, 3, -2),
    Sketcher.Constraint("Diameter", 0, 3.0),
    Sketcher.Constraint("DistanceY", 0, 3, -1, 1, 11.0),
])
pocket1 = doc.addObject("PartDesign::Pocket", "Pocket")
body15.addObject(pocket1)
pocket1.Profile = sketch17
pocket1.Length = 5
body16 = doc.addObject("PartDesign::Body", "Body015")
body16.AllowCompound = True

sketch18 = doc.addObject("Sketcher::SketchObject", "Sketch017")
body16.addObject(sketch18)
sketch18.AttachmentSupport = (doc.getObject("YZ_Plane015"), [""])
sketch18.MapMode = "FlatFace"
sketch18.AttachmentOffset = App.Placement(V(0, 0, 5.5), App.Rotation())
sketch18.addGeometry([
    Part.Circle(V(5, -3.5, 0), V(0, 0, 1), 4),
    Part.Circle(V(-5, -3.5, 0), V(0, 0, 1), 4),
], False)
sketch18.addConstraint([
    Sketcher.Constraint("Equal", 0, 1),
    Sketcher.Constraint("Symmetric", 0, 3, 1, 3, -2),
    Sketcher.Constraint("Diameter", 0, 8.0),
    Sketcher.Constraint("DistanceX", -1, 1, 0, 3, 5.0),
    Sketcher.Constraint("DistanceY", 0, 3, -1, 1, 3.5),
])
pad17 = doc.addObject("PartDesign::Pad", "Pad016")
body16.addObject(pad17)
pad17.Profile = sketch18
pad17.Length = 27.930466
pad17.Reversed = True
body2.AllowCompound = True
doc.recompute()

body17 = doc.addObject("PartDesign::Body", "Body016")
body17.BaseFeature = body16
boolean4 = doc.addObject("PartDesign::Boolean", "Boolean003")
body2.addObject(boolean4)
boolean4.Type = "Cut"
boolean4.addObjects([body17])
doc.recompute()

body18 = doc.addObject("PartDesign::Body", "Body017")
body18.BaseFeature = body16
boolean5 = doc.addObject("PartDesign::Boolean", "Boolean004")
body7.addObject(boolean5)
boolean5.Type = "Cut"
boolean5.addObjects([body18])
doc.recompute()

body19 = doc.addObject("PartDesign::Body", "Body018")
body19.BaseFeature = body16
boolean6 = doc.addObject("PartDesign::Boolean", "Boolean005")
body8.addObject(boolean6)
boolean6.Type = "Cut"
boolean6.addObjects([body19])
doc.recompute()
body10.AllowCompound = True
doc.recompute()

body20 = doc.addObject("PartDesign::Body", "Body019")
body20.BaseFeature = body16
boolean7 = doc.addObject("PartDesign::Boolean", "Boolean006")
body10.addObject(boolean7)
boolean7.Type = "Cut"
boolean7.addObjects([body20])
doc.recompute()
body13.AllowCompound = True
doc.recompute()

boolean8 = doc.addObject("PartDesign::Boolean", "Boolean007")
body13.addObject(boolean8)
boolean8.Type = "Cut"
boolean8.addObjects([body16])
body21 = doc.addObject("PartDesign::Body", "Body020")
body21.AllowCompound = True

sketch19 = doc.addObject("Sketcher::SketchObject", "Sketch018")
body21.addObject(sketch19)
sketch19.AttachmentSupport = (doc.getObject("YZ_Plane020"), [""])
sketch19.MapMode = "FlatFace"
sketch19.AttachmentOffset = App.Placement(V(0, 0, 5.5), App.Rotation())
sketch19.addGeometry([
    Part.ArcOfCircle(Part.Circle(V(-13.5, 1.5, 0), V(0, 0, 1), 3.5), math.radians(90), math.radians(180)),
    Part.LineSegment(V(-13.5, 5, 0), V(-17, 5, 0)),
    Part.LineSegment(V(-17, 5, 0), V(-17, 1.5, 0)),
    Part.ArcOfCircle(Part.Circle(V(13.5, 1.5, 0), V(0, 0, 1), 3.5), math.radians(0), math.radians(90)),
    Part.LineSegment(V(17, 1.5, 0), V(17, 5, 0)),
    Part.LineSegment(V(17, 5, 0), V(13.5, 5, 0)),
], False)
sketch19.addConstraint([
    Sketcher.Constraint("Tangent", 0, 1, 1, 1),
    Sketcher.Constraint("Coincident", 1, 2, 2, 1),
    Sketcher.Constraint("Tangent", 2, 2, 0, 2),
    Sketcher.Constraint("Tangent", 3, 1, 4, 1),
    Sketcher.Constraint("Coincident", 4, 2, 5, 1),
    Sketcher.Constraint("Tangent", 5, 2, 3, 2),
    Sketcher.Constraint("Horizontal", 1),
    Sketcher.Constraint("Vertical", 2),
    Sketcher.Constraint("Vertical", 4),
    Sketcher.Constraint("Horizontal", 5),
    Sketcher.Constraint("Equal", 0, 3),
    Sketcher.Constraint("Symmetric", 0, 3, 3, 3, -2),
    Sketcher.Constraint("Radius", 0, 3.5),
    Sketcher.Constraint("DistanceY", -1, 1, 0, 1, 5.0),
    Sketcher.Constraint("DistanceX", 1, 2, -1, 1, 17.0),
])
pad18 = doc.addObject("PartDesign::Pad", "Pad017")
body21.addObject(pad18)
pad18.Profile = sketch19
pad18.Length = 27.930466
pad18.Reversed = True
doc.recompute()

body22 = doc.addObject("PartDesign::Body", "Body021")
body22.BaseFeature = body21
boolean9 = doc.addObject("PartDesign::Boolean", "Boolean008")
body.addObject(boolean9)
boolean9.Type = "Cut"
boolean9.addObjects([body22])
doc.recompute()
body2.AllowCompound = True
doc.recompute()

body23 = doc.addObject("PartDesign::Body", "Body022")
body23.BaseFeature = body21
boolean10 = doc.addObject("PartDesign::Boolean", "Boolean009")
body2.addObject(boolean10)
boolean10.Type = "Cut"
boolean10.addObjects([body23])
doc.recompute()

body24 = doc.addObject("PartDesign::Body", "Body023")
body24.BaseFeature = body21
boolean11 = doc.addObject("PartDesign::Boolean", "Boolean010")
body7.addObject(boolean11)
boolean11.Type = "Cut"
boolean11.addObjects([body24])
doc.recompute()

body25 = doc.addObject("PartDesign::Body", "Body024")
body25.BaseFeature = body21
boolean12 = doc.addObject("PartDesign::Boolean", "Boolean011")
body8.addObject(boolean12)
boolean12.Type = "Cut"
boolean12.addObjects([body25])
doc.recompute()

body26 = doc.addObject("PartDesign::Body", "Body025")
body26.BaseFeature = body21
boolean13 = doc.addObject("PartDesign::Boolean", "Boolean012")
body14.addObject(boolean13)
boolean13.Type = "Cut"
boolean13.addObjects([body26])
doc.recompute()

boolean14 = doc.addObject("PartDesign::Boolean", "Boolean013")
body15.addObject(boolean14)
boolean14.Type = "Cut"
boolean14.addObjects([body21])

doc.recompute()
